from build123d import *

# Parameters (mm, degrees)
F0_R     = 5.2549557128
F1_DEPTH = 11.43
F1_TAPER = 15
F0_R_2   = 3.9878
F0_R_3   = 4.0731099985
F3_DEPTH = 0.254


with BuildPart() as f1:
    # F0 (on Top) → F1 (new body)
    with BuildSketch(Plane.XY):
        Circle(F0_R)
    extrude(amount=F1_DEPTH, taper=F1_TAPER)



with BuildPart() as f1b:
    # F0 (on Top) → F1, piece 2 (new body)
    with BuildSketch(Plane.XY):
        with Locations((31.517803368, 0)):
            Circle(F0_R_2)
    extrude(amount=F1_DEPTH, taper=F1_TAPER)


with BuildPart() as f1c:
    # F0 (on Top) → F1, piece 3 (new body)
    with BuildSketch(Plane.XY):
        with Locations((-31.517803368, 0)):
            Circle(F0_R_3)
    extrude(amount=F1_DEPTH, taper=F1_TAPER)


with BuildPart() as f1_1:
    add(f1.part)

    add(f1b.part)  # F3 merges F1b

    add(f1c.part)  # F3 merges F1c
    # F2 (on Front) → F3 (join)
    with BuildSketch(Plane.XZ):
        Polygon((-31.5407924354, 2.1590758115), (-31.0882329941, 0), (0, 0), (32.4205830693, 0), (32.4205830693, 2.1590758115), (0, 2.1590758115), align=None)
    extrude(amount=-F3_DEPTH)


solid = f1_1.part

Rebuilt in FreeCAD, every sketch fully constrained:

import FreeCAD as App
import Part
import Sketcher
from FreeCAD import Vector
Q = App.Units.Quantity


def add_polygon(sketch, points):
    """Adds a closed chain of lines whose ends are joined by coincident constraints."""
    first, n = sketch.GeometryCount, len(points)
    for a, b in zip(points, points[1:] + points[:1]):
        sketch.addGeometry(Part.LineSegment(App.Vector(*a, 0), App.Vector(*b, 0)), False)
    for i in range(n):
        sketch.addConstraint(Sketcher.Constraint("Coincident", first + i, 2, first + (i + 1) % n, 1))

doc = App.newDocument("Part")
params = doc.addObject("Spreadsheet::Sheet", "Params")
for row, (alias, value) in enumerate([
    ("pad1_length", "0.45 in"),
    ("pad1_taper", "-15 deg"),
    ("sketch2_diameter", "0.314 in"),
    ("pad2_length", "0.45 in"),
    ("pad2_taper", "-15 deg"),
    ("pad3_length", "0.45 in"),
    ("pad3_taper", "-15 deg"),
    ("pad4_length", "0.01 in"),
], start=1):
    params.set(f"A{row}", alias)
    params.set(f"B{row}", "=" + value)
    params.setAlias(f"B{row}", alias)

body = doc.addObject("PartDesign::Body", "Body")

sketch1 = doc.addObject("Sketcher::SketchObject", "Sketch")
body.addObject(sketch1)
sketch1.AttachmentSupport = (doc.XY_Plane, [""])
sketch1.MapMode = "FlatFace"
sketch1.addGeometry(Part.Circle(Vector(0, 0, 0), Vector(0, 0, 1), 5.254956), False)
sketch1.addConstraint(Sketcher.Constraint("Coincident", 0, 3, -1, 1))
sketch1.addConstraint(Sketcher.Constraint("Diameter", 0, 10.509911))
pad1 = doc.addObject("PartDesign::Pad", "Pad")
body.addObject(pad1)
pad1.Profile = sketch1
pad1.setExpression("Length", "Params.pad1_length")
pad1.setExpression("TaperAngle", "Params.pad1_taper")
body2 = doc.addObject("PartDesign::Body", "Body001")

sketch2 = doc.addObject("Sketcher::SketchObject", "Sketch001")
body2.addObject(sketch2)
sketch2.AttachmentSupport = (doc.getObject("XY_Plane001"), [""])
sketch2.MapMode = "FlatFace"
sketch2.addGeometry(Part.Circle(Vector(31.517803, 0, 0), Vector(0, 0, 1), 3.9878), False)
sketch2.addConstraint(Sketcher.Constraint("PointOnObject", 0, 3, -1))
sketch2.addConstraint(Sketcher.Constraint("Diameter", 0, Q("0.314 in")))
sketch2.addConstraint(Sketcher.Constraint("DistanceX", -1, 1, 0, 3, 31.517803))
sketch2.setExpression("Constraints[1]", "Params.sketch2_diameter")
pad2 = doc.addObject("PartDesign::Pad", "Pad001")
body2.addObject(pad2)
pad2.Profile = sketch2
pad2.setExpression("Length", "Params.pad2_length")
pad2.setExpression("TaperAngle", "Params.pad2_taper")
body3 = doc.addObject("PartDesign::Body", "Body002")

sketch3 = doc.addObject("Sketcher::SketchObject", "Sketch002")
body3.addObject(sketch3)
sketch3.AttachmentSupport = (doc.getObject("XY_Plane002"), [""])
sketch3.MapMode = "FlatFace"
sketch3.addGeometry(Part.Circle(Vector(-31.517803, 0, 0), Vector(0, 0, 1), 4.07311), False)
sketch3.addConstraint(Sketcher.Constraint("PointOnObject", 0, 3, -1))
sketch3.addConstraint(Sketcher.Constraint("Diameter", 0, 8.14622))
sketch3.addConstraint(Sketcher.Constraint("DistanceX", 0, 3, -1, 1, 31.517803))
pad3 = doc.addObject("PartDesign::Pad", "Pad002")
body3.addObject(pad3)
pad3.Profile = sketch3
pad3.setExpression("Length", "Params.pad3_length")
pad3.setExpression("TaperAngle", "Params.pad3_taper")
body.AllowCompound = True
doc.recompute()

boolean = doc.addObject("PartDesign::Boolean", "Boolean")
body.addObject(boolean)
boolean.Type = "Fuse"
boolean.addObjects([body2])
doc.recompute()

boolean2 = doc.addObject("PartDesign::Boolean", "Boolean001")
body.addObject(boolean2)
boolean2.Type = "Fuse"
boolean2.addObjects([body3])

sketch4 = doc.addObject("Sketcher::SketchObject", "Sketch003")
body.addObject(sketch4)
sketch4.AttachmentSupport = (doc.XZ_Plane, [""])
sketch4.MapMode = "FlatFace"
add_polygon(sketch4, [(-31.540792, 2.159076), (-31.088233, 0), (32.420583, 0), (32.420583, 2.159076)])
sketch4.addConstraint(Sketcher.Constraint("Horizontal", 1))
sketch4.addConstraint(Sketcher.Constraint("Vertical", 2))
sketch4.addConstraint(Sketcher.Constraint("Horizontal", 3))
sketch4.addConstraint(Sketcher.Constraint("PointOnObject", 0, 2, -1))
sketch4.addConstraint(Sketcher.Constraint("DistanceX", 1, 1, 1, 2, 63.508816))
sketch4.addConstraint(Sketcher.Constraint("DistanceX", 3, 2, 3, 1, 63.961376))
sketch4.addConstraint(Sketcher.Constraint("DistanceY", 2, 1, 2, 2, 2.159076))
sketch4.addConstraint(Sketcher.Constraint("DistanceX", 0, 2, -1, 1, 31.088233))
pad4 = doc.addObject("PartDesign::Pad", "Pad003")
body.addObject(pad4)
pad4.Profile = sketch4
pad4.setExpression("Length", "Params.pad4_length")
pad4.Reversed = True

doc.recompute()
